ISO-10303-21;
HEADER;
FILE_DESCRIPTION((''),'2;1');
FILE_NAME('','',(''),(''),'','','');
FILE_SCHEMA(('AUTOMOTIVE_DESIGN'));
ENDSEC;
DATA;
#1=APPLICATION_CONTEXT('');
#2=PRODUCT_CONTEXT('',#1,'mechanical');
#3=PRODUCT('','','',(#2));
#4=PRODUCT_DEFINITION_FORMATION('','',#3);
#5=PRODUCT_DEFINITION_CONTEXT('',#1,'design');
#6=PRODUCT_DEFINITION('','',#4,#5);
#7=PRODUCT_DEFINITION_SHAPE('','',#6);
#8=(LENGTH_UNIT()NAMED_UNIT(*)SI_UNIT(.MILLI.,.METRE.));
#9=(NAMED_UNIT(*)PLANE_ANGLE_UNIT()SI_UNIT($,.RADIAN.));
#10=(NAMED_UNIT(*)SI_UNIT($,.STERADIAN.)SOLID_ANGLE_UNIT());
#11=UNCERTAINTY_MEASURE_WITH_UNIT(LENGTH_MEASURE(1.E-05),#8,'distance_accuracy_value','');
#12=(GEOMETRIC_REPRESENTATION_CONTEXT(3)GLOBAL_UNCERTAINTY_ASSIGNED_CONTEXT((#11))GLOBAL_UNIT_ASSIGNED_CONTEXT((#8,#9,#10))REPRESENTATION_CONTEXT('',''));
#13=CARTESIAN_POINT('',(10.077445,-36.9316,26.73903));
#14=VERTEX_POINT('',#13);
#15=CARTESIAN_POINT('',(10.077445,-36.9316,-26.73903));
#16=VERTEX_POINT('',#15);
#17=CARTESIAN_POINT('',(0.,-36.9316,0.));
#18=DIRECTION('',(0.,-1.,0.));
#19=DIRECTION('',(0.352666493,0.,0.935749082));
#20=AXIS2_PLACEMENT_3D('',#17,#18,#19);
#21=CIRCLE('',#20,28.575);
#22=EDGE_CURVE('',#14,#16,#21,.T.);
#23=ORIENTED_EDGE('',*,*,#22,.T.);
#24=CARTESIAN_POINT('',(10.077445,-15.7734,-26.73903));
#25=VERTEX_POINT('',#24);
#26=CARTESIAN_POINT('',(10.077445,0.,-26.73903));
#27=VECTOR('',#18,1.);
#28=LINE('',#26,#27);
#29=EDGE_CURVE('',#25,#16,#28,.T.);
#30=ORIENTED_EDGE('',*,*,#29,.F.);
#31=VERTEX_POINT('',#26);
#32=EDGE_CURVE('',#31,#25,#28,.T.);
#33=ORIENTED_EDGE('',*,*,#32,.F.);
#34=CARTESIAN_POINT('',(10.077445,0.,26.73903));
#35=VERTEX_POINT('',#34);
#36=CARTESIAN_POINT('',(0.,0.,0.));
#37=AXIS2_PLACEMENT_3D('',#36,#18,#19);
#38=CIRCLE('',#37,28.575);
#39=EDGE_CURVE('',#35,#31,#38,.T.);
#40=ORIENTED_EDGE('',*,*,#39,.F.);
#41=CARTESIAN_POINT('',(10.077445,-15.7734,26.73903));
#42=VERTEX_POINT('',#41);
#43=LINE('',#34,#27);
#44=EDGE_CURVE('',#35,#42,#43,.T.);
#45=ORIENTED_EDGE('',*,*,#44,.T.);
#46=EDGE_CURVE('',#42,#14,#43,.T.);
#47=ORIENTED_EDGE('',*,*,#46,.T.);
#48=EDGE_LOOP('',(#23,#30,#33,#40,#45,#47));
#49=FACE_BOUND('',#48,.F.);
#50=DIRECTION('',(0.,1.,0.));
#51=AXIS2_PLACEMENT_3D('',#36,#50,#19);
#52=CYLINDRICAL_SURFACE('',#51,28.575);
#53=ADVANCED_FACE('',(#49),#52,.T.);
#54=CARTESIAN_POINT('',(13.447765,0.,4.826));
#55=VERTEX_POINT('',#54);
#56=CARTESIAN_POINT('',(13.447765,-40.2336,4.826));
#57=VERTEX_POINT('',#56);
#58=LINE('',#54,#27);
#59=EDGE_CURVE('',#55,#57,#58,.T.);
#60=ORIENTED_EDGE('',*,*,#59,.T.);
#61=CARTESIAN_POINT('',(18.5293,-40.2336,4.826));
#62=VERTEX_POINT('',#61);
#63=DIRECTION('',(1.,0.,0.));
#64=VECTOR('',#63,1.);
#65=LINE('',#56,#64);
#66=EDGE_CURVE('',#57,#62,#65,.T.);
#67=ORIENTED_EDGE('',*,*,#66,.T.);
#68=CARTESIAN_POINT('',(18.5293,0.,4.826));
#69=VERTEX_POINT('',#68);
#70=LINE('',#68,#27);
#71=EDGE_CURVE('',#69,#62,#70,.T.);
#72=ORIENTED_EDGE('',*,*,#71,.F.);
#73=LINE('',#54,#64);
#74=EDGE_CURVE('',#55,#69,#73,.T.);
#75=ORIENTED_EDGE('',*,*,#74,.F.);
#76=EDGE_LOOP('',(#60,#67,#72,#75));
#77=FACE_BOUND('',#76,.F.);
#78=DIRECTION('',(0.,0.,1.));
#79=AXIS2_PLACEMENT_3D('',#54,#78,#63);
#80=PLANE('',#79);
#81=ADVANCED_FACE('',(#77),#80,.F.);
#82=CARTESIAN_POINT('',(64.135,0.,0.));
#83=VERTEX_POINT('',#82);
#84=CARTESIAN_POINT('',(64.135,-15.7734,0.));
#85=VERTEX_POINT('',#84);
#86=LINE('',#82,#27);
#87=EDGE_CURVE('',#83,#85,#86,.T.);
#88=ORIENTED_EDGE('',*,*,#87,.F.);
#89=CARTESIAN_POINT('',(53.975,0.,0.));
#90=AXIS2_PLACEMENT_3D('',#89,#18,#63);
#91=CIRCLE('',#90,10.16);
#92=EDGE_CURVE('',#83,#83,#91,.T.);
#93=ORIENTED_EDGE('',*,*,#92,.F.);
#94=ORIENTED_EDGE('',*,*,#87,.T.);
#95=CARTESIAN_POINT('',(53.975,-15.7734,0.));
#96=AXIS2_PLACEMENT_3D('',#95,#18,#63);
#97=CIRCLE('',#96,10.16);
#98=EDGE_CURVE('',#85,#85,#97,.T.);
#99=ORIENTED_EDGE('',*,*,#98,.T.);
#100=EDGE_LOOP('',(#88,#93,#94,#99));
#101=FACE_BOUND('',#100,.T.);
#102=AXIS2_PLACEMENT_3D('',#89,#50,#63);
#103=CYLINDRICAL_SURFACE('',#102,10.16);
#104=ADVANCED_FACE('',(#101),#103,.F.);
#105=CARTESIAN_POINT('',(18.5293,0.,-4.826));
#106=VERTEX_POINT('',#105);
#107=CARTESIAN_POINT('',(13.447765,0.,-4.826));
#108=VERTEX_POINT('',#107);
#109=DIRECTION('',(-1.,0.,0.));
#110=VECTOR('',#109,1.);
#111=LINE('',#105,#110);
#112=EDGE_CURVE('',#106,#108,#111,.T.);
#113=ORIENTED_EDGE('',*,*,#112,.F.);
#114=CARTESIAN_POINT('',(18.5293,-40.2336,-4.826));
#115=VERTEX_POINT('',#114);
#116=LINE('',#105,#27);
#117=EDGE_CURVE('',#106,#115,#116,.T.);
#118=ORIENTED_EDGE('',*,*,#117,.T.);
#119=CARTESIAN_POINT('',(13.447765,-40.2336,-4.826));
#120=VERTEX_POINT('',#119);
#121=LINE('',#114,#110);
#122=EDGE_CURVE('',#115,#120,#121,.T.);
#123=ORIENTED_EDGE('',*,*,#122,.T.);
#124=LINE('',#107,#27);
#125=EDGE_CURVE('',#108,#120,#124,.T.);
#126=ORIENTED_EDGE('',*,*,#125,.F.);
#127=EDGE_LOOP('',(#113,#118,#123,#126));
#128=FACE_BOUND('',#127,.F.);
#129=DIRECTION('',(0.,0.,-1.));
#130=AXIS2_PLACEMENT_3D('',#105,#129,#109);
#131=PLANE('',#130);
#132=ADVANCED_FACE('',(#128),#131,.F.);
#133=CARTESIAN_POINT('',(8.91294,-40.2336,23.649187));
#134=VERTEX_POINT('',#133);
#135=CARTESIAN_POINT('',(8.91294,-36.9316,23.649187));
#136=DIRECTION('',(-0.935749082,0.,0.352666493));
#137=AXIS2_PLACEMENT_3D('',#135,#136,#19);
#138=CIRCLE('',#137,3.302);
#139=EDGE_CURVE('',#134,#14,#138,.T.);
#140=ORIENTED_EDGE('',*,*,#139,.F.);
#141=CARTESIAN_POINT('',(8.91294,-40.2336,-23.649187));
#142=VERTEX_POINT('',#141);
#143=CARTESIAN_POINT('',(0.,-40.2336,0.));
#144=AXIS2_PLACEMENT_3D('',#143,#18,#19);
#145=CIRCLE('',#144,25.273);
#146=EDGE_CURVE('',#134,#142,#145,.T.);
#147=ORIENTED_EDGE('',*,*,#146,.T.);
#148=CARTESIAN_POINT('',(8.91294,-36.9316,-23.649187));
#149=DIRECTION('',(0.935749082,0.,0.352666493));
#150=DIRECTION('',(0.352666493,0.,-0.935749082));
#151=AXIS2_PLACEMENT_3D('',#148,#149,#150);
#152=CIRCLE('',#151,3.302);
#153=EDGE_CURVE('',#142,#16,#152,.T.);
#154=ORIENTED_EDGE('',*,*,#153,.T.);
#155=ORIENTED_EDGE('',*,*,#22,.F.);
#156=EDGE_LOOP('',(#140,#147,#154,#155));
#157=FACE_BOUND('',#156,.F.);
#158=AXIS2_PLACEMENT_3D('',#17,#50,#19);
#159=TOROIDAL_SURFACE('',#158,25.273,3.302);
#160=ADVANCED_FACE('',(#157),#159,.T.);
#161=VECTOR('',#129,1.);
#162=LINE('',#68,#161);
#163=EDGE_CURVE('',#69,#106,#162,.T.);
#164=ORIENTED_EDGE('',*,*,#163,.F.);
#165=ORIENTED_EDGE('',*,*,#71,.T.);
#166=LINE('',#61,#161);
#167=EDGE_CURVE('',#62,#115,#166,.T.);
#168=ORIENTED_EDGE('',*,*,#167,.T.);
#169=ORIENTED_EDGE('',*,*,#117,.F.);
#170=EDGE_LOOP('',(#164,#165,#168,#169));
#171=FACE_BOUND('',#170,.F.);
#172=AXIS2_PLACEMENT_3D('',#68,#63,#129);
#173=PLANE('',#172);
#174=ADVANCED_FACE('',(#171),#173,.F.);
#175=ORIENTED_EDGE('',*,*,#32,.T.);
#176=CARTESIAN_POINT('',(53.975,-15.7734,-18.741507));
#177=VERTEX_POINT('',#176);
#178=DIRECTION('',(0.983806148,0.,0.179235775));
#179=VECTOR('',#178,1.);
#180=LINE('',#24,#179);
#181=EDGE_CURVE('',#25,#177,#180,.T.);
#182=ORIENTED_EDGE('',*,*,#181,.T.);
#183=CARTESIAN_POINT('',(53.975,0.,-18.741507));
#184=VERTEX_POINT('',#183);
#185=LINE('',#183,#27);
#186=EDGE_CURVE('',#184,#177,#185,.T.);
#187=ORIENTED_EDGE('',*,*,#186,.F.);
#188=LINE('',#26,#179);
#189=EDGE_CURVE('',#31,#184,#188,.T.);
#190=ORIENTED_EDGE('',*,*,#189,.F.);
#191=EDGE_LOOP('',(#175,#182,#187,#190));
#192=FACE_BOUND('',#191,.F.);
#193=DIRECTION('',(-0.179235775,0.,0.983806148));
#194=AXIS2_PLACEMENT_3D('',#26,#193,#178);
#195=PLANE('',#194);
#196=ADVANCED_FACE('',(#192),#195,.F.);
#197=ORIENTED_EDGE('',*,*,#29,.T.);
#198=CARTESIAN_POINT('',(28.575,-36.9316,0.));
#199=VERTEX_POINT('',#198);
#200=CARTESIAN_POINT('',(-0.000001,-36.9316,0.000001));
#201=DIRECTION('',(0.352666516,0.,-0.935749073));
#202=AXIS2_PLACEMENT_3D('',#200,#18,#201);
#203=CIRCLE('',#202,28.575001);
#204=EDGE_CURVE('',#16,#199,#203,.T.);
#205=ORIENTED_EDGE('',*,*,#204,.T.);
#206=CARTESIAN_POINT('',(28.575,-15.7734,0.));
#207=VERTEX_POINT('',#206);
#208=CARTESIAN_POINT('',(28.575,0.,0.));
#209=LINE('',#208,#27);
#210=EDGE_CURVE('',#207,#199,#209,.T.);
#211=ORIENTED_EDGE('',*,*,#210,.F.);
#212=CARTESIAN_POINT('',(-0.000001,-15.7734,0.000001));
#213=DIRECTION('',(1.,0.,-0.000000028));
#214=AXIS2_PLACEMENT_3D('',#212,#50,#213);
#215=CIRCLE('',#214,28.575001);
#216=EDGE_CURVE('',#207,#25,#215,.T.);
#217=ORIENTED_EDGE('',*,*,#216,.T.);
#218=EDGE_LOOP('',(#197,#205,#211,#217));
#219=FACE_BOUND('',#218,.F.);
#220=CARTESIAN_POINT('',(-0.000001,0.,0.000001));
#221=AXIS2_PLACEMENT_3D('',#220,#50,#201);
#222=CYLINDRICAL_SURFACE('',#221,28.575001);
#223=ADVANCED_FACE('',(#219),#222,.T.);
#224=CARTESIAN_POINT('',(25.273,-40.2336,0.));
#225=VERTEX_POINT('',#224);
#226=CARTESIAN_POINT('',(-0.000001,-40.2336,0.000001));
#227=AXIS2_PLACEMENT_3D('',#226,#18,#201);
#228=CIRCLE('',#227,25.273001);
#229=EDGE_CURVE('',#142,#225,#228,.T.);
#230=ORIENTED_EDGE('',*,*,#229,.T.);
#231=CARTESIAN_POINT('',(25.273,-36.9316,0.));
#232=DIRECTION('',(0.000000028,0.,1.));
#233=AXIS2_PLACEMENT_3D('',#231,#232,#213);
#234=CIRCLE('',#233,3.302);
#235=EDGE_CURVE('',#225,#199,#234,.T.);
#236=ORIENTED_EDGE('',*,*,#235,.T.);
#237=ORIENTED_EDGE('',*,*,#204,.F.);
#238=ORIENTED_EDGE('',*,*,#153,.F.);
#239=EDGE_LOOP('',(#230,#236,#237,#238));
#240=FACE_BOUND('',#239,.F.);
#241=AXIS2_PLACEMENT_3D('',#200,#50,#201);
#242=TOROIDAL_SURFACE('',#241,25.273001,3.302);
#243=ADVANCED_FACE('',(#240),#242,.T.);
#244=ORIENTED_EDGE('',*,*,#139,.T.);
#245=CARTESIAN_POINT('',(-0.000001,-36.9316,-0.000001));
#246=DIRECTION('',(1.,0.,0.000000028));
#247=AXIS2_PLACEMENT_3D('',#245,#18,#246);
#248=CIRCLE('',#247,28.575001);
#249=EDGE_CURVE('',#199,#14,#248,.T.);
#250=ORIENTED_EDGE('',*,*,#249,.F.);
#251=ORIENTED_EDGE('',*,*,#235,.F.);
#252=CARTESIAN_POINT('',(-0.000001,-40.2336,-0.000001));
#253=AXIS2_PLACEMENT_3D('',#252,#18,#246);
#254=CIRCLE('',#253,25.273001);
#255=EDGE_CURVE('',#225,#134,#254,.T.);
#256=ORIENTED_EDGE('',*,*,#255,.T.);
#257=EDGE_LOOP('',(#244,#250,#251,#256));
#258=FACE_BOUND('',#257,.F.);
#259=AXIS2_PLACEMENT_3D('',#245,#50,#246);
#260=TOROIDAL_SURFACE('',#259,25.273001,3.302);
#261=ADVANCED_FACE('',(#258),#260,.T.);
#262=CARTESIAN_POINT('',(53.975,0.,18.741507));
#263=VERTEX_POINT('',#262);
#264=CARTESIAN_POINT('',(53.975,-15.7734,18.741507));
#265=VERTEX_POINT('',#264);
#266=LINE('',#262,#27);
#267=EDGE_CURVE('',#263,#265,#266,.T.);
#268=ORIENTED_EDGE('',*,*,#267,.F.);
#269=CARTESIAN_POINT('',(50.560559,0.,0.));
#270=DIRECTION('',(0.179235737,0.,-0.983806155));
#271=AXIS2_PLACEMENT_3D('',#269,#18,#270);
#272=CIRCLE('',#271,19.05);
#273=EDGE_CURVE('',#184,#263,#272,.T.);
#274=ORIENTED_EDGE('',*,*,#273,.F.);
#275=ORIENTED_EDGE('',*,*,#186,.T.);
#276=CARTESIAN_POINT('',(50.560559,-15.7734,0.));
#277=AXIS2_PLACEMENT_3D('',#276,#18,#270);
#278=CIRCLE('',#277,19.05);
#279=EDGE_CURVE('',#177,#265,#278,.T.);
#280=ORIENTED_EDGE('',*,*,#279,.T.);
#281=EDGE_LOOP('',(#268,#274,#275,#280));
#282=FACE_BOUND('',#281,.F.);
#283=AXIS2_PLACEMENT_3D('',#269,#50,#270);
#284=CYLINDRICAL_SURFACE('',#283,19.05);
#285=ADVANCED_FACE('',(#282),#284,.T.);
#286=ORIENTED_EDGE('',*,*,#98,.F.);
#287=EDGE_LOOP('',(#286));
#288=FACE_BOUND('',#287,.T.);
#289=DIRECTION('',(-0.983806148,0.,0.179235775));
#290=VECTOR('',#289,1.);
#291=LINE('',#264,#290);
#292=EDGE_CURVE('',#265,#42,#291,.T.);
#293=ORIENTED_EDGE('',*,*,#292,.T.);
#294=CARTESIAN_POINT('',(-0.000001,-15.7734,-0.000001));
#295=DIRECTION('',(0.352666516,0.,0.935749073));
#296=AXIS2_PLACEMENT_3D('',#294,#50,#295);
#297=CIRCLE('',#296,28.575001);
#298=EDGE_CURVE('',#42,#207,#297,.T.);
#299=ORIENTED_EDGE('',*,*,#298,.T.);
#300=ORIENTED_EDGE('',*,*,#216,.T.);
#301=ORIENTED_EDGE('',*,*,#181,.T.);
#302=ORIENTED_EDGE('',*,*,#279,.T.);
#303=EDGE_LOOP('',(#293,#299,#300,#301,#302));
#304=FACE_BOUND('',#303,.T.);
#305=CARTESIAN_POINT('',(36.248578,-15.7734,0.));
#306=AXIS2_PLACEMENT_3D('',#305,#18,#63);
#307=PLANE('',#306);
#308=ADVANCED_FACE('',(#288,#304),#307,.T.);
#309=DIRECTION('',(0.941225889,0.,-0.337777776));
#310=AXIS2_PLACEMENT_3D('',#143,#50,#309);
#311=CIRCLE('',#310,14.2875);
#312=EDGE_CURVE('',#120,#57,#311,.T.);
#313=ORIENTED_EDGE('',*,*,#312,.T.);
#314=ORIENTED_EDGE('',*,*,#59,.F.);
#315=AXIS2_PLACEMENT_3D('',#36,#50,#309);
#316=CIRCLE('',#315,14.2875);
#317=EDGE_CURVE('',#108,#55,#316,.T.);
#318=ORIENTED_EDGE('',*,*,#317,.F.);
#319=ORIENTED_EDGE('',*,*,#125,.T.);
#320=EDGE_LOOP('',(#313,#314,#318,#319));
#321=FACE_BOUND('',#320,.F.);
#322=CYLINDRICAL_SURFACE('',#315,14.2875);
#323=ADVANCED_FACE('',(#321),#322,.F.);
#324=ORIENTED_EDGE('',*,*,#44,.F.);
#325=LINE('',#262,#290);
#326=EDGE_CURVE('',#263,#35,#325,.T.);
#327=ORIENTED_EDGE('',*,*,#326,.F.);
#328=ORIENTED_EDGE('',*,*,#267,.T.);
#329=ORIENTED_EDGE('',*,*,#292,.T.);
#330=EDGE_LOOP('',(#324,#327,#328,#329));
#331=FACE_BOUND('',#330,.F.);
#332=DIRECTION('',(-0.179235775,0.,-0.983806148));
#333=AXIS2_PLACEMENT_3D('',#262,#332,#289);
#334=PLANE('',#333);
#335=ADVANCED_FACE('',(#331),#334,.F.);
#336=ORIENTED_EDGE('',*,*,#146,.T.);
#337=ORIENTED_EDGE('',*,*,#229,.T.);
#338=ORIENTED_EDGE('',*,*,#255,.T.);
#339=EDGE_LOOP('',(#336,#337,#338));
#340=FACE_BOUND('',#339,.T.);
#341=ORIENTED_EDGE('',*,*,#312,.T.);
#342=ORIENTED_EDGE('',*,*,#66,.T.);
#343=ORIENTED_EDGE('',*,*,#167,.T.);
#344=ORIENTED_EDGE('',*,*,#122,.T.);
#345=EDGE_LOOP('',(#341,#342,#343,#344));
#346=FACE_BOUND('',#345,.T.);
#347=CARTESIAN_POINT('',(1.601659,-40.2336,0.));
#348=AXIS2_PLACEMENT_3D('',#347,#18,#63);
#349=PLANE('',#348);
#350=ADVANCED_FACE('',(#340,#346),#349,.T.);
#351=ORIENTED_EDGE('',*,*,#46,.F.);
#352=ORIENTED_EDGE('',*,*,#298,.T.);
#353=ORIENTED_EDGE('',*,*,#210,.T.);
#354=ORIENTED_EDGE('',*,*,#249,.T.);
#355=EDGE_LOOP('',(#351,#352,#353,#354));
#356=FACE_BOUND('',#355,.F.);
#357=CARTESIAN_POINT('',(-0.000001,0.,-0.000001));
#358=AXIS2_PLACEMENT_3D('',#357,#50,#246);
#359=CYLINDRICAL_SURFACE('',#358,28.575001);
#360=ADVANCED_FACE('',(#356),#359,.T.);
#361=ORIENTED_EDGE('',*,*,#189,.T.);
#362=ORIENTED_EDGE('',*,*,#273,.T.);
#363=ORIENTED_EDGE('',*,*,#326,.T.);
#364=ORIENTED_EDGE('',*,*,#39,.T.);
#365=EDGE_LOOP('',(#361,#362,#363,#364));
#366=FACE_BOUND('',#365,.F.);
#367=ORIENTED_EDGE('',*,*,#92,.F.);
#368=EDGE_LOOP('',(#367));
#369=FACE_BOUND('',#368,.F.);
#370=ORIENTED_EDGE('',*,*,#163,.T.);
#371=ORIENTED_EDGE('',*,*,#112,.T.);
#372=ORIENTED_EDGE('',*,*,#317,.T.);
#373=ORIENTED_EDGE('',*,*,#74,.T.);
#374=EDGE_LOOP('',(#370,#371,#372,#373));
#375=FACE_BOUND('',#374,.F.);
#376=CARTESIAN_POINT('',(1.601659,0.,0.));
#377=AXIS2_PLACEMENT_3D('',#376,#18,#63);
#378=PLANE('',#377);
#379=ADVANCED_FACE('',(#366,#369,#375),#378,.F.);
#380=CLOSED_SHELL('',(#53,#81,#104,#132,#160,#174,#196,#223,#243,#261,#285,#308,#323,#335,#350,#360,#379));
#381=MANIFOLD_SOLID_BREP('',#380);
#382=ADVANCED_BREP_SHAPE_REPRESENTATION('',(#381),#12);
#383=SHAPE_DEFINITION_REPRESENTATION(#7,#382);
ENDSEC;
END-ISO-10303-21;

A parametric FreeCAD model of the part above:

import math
import FreeCAD as App
import Part
import Sketcher
Q = App.Units.Quantity


def edges_at(feature, points):
    """Names of the edges that pass closest to the given points."""
    edges = feature.Shape.Edges
    near = lambda p: min(range(len(edges)), key=lambda i: edges[i].distToShape(Part.Vertex(*p))[0])
    return sorted({f"Edge{near(p) + 1}" for p in points})

doc = App.newDocument("Part")
body = doc.addObject("PartDesign::Body", "Body")

# Sketch on XZ plane
sketch1 = body.newObject("Sketcher::SketchObject", "Sketch")
sketch1.AttachmentSupport = (doc.getObject("XZ_Plane"), [""])
sketch1.MapMode = "FlatFace"
sketch1.addGeometry([
    Part.ArcOfCircle(Part.Circle(App.Vector(0, 0, 0), App.Vector(0, 0, 1), 29), math.radians(0), math.radians(69)),  # 0
    Part.ArcOfCircle(Part.Circle(App.Vector(0, 0, 0), App.Vector(0, 0, 1), 29), math.radians(-69), math.radians(0)),  # 1
    Part.LineSegment(App.Vector(10, -27, 0), App.Vector(54, -19, 0)),  # 2
    Part.ArcOfCircle(Part.Circle(App.Vector(51, 0, 0), App.Vector(0, 0, 1), 19), math.radians(-80), math.radians(80)),  # 3
    Part.LineSegment(App.Vector(54, 19, 0), App.Vector(10, 27, 0)),  # 4
    Part.Circle(App.Vector(54, 0, 0), App.Vector(0, 0, 1), 10),  # 5
], False)
sketch1.addConstraint([
    Sketcher.Constraint("Tangent", 0, 1, 1, 2),
    Sketcher.Constraint("Coincident", 1, 1, 2, 1),
    Sketcher.Constraint("Tangent", 2, 2, 3, 1),
    Sketcher.Constraint("Tangent", 3, 2, 4, 1),
    Sketcher.Constraint("Coincident", 4, 2, 0, 2),
    Sketcher.Constraint("Coincident", 0, 3, -1, 1),
    Sketcher.Constraint("Equal", 0, 1),
    Sketcher.Constraint("Symmetric", 2, 2, 3, 2, -1),
    Sketcher.Constraint("PointOnObject", 5, 3, -1),
    Sketcher.Constraint("PointOnObject", 0, 1, -1),
    Sketcher.Constraint("Vertical", 5, 3, 2, 2),
    Sketcher.Constraint("Diameter", 5, Q("0.8 in")),
    Sketcher.Constraint("Radius", 3, Q("0.75 in")),
    Sketcher.Constraint("Radius", 0, Q("1.125 in")),
    Sketcher.Constraint("DistanceX", 0, 1, 5, 3, Q("1 in")),
    Sketcher.Constraint("DistanceX", -1, 1, 3, 3, 50.560559),
])
pad1 = body.newObject("PartDesign::Pad", "Pad")
pad1.Profile = sketch1
pad1.Length = Q("0.621 in")

# Sketch on XZ plane
sketch2 = body.newObject("Sketcher::SketchObject", "Sketch001")
sketch2.AttachmentSupport = (doc.getObject("XZ_Plane"), [""])
sketch2.MapMode = "FlatFace"
sketch2.addGeometry([
    Part.ArcOfCircle(Part.Circle(App.Vector(0, 0, 0), App.Vector(0, 0, 1), 29), math.radians(-69), math.radians(0)),  # 0
    Part.ArcOfCircle(Part.Circle(App.Vector(0, 0, 0), App.Vector(0, 0, 1), 29), math.radians(0), math.radians(69)),  # 1
    Part.ArcOfCircle(Part.Circle(App.Vector(0, 0, 0), App.Vector(0, 0, 1), 29), math.radians(69), math.radians(291)),  # 2
    Part.LineSegment(App.Vector(19, -5, 0), App.Vector(13, -5, 0)),  # 3
    Part.ArcOfCircle(Part.Circle(App.Vector(0, 0, 0), App.Vector(0, 0, 1), 14), math.radians(20), math.radians(340)),  # 4
    Part.LineSegment(App.Vector(13, 5, 0), App.Vector(19, 5, 0)),  # 5
    Part.LineSegment(App.Vector(19, 5, 0), App.Vector(19, -5, 0)),  # 6
], False)
sketch2.addConstraint([
    Sketcher.Constraint("Tangent", 0, 2, 1, 1),
    Sketcher.Constraint("Tangent", 1, 2, 2, 1),
    Sketcher.Constraint("Tangent", 2, 2, 0, 1),
    Sketcher.Constraint("Coincident", 3, 2, 4, 2),
    Sketcher.Constraint("Coincident", 4, 1, 5, 1),
    Sketcher.Constraint("Coincident", 5, 2, 6, 1),
    Sketcher.Constraint("Coincident", 6, 2, 3, 1),
    Sketcher.Constraint("Horizontal", 3),
    Sketcher.Constraint("Horizontal", 5),
    Sketcher.Constraint("Vertical", 6),
    Sketcher.Constraint("Coincident", 0, 3, -1, 1),
    Sketcher.Constraint("Coincident", 4, 3, -1, 1),
    Sketcher.Constraint("PointOnObject", 0, 2, -1),
    Sketcher.Constraint("Vertical", 1, 2, 2, 2),
    Sketcher.Constraint("Vertical", 3, 2, 4, 1),
    Sketcher.Constraint("Radius", 0, Q("1.125 in")),
    Sketcher.Constraint("Radius", 4, Q("0.5625 in")),
    Sketcher.Constraint("DistanceY", 6, 2, 6, 1, Q("0.38 in")),
    Sketcher.Constraint("DistanceX", -1, 1, 5, 2, Q("0.7295 in")),
    Sketcher.Constraint("DistanceY", -1, 1, 1, 2, 26.73903),
])
pad2 = body.newObject("PartDesign::Pad", "Pad001")
pad2.Profile = sketch2
pad2.Length = Q("1.584 in")
doc.recompute()

fillet = body.newObject("PartDesign::Fillet", "Fillet")
fillet.Base = (pad2, edges_at(pad2, [(-28.575, -40.234, 0)]))
fillet.Radius = Q("0.13 in")

doc.recompute()
